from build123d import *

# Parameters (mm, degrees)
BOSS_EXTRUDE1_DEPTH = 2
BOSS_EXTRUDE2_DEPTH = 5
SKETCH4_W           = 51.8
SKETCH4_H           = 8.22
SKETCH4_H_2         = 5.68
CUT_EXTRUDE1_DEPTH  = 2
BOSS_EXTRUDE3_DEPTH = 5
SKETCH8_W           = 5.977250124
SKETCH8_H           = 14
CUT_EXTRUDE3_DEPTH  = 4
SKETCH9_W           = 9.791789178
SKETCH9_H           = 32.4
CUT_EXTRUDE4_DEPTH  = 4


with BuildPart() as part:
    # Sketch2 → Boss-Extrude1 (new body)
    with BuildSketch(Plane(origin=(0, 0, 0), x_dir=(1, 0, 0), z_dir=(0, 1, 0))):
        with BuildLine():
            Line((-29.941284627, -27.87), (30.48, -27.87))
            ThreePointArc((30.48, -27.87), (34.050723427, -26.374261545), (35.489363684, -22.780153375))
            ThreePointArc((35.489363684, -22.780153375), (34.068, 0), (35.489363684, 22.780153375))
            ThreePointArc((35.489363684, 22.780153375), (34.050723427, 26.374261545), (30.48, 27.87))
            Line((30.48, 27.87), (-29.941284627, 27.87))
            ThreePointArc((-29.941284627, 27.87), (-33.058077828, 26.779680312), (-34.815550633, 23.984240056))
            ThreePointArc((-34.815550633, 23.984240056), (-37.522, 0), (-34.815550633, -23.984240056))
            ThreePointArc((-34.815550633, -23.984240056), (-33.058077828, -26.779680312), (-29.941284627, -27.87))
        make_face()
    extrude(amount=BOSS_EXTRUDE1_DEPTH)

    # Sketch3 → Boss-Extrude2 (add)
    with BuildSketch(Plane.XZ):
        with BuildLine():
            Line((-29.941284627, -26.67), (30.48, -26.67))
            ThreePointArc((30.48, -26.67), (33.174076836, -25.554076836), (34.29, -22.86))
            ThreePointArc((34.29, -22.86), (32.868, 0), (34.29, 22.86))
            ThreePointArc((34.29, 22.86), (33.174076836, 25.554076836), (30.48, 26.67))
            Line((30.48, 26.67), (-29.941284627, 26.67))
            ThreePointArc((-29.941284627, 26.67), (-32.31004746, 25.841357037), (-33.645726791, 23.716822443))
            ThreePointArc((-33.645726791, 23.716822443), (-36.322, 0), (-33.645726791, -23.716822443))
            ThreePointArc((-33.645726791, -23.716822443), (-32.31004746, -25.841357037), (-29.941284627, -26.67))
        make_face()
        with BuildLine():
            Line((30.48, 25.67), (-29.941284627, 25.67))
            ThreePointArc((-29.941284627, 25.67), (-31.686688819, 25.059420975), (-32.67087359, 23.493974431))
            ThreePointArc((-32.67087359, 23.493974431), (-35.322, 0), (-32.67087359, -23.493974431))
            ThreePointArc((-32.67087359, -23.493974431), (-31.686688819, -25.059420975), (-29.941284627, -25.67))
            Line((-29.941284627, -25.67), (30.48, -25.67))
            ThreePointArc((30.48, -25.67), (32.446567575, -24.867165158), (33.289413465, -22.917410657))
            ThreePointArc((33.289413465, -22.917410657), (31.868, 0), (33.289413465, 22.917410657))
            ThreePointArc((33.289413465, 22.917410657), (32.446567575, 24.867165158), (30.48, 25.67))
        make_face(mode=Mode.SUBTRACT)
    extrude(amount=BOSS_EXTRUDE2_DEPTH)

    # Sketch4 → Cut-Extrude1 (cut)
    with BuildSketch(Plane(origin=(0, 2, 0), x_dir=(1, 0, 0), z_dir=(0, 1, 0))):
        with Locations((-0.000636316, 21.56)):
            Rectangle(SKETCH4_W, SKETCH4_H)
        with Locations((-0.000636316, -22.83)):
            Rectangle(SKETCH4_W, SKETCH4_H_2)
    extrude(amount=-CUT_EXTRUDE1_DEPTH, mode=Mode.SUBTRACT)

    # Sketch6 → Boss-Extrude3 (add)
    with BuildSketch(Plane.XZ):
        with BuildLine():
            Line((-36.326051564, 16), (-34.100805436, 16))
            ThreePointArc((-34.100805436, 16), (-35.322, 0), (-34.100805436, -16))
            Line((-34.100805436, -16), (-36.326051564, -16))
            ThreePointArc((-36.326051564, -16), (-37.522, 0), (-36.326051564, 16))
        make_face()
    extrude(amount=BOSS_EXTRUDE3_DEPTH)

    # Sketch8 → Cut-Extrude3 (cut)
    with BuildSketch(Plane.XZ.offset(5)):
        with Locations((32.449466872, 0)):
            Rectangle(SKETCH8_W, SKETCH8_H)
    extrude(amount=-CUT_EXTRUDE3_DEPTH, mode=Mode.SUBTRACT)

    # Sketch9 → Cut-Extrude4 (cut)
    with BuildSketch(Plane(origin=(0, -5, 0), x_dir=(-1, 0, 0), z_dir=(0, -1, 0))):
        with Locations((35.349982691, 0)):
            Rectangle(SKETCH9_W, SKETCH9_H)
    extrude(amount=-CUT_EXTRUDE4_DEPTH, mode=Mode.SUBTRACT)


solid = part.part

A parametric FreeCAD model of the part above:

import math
import FreeCAD as App
import Part
import Sketcher

doc = App.newDocument("Part")
body = doc.addObject("PartDesign::Body", "Body")

sketch1 = doc.addObject("Sketcher::SketchObject", "Sketch")
body.addObject(sketch1)
sketch1.AttachmentSupport = (doc.XZ_Plane, [""])
sketch1.MapMode = "FlatFace"
sketch1.addGeometry(Part.LineSegment(App.Vector(-30, 28, 0), App.Vector(30, 28, 0)), False)
sketch1.addGeometry(Part.ArcOfCircle(Part.Circle(App.Vector(30, 23, 0), App.Vector(0, 0, 1), 5), math.radians(-1), math.radians(90)), False)
sketch1.addGeometry(Part.ArcOfCircle(Part.Circle(App.Vector(217, 0, 0), App.Vector(0, 0, 1), 183), math.radians(172.86), math.radians(187.14)), False)
sketch1.addGeometry(Part.ArcOfCircle(Part.Circle(App.Vector(30, -23, 0), App.Vector(0, 0, 1), 5), math.radians(-90), math.radians(1)), False)
sketch1.addGeometry(Part.LineSegment(App.Vector(30, -28, 0), App.Vector(-30, -28, 0)), False)
sketch1.addGeometry(Part.ArcOfCircle(Part.Circle(App.Vector(-30, -23, 0), App.Vector(0, 0, 1), 5), math.radians(-167), math.radians(-90)), False)
sketch1.addGeometry(Part.ArcOfCircle(Part.Circle(App.Vector(70, 0, 0), App.Vector(0, 0, 1), 108), math.radians(167), math.radians(193)), False)
sketch1.addGeometry(Part.ArcOfCircle(Part.Circle(App.Vector(-30, 23, 0), App.Vector(0, 0, 1), 5), math.radians(90), math.radians(167)), False)
sketch1.addConstraint(Sketcher.Constraint("Tangent", 0, 2, 1, 2))
sketch1.addConstraint(Sketcher.Constraint("Coincident", 1, 1, 2, 1))
sketch1.addConstraint(Sketcher.Constraint("Coincident", 2, 2, 3, 2))
sketch1.addConstraint(Sketcher.Constraint("Tangent", 3, 1, 4, 1))
sketch1.addConstraint(Sketcher.Constraint("Tangent", 4, 2, 5, 2))
sketch1.addConstraint(Sketcher.Constraint("Tangent", 5, 1, 6, 2))
sketch1.addConstraint(Sketcher.Constraint("Tangent", 6, 1, 7, 2))
sketch1.addConstraint(Sketcher.Constraint("Tangent", 7, 1, 0, 1))
sketch1.addConstraint(Sketcher.Constraint("Horizontal", 0))
sketch1.addConstraint(Sketcher.Constraint("Horizontal", 4))
sketch1.addConstraint(Sketcher.Constraint("Equal", 1, 3))
sketch1.addConstraint(Sketcher.Constraint("Equal", 5, 7))
sketch1.addConstraint(Sketcher.Constraint("Symmetric", 1, 3, 3, 3, -1))
sketch1.addConstraint(Sketcher.Constraint("PointOnObject", 2, 3, -1))
sketch1.addConstraint(Sketcher.Constraint("PointOnObject", 6, 3, -1))
sketch1.addConstraint(Sketcher.Constraint("Radius", 5, 5.0))
sketch1.addConstraint(Sketcher.Constraint("Radius", 1, 5.01))
sketch1.addConstraint(Sketcher.Constraint("Radius", 6, 107.626))
sketch1.addConstraint(Sketcher.Constraint("Radius", 2, 183.259101))
sketch1.addConstraint(Sketcher.Constraint("DistanceX", -1, 1, 1, 3, 30.48))
sketch1.addConstraint(Sketcher.Constraint("DistanceY", -1, 1, 1, 3, 22.86))
sketch1.addConstraint(Sketcher.Constraint("DistanceX", -1, 1, 6, 3, 70.104))
sketch1.addConstraint(Sketcher.Constraint("DistanceX", -1, 1, 2, 3, 217.327101))
pad1 = doc.addObject("PartDesign::Pad", "Pad")
body.addObject(pad1)
pad1.Profile = sketch1
pad1.Length = 2
pad1.Reversed = True

sketch2 = doc.addObject("Sketcher::SketchObject", "Sketch001")
body.addObject(sketch2)
sketch2.AttachmentSupport = (doc.XZ_Plane, [""])
sketch2.MapMode = "FlatFace"
sketch2.addGeometry(Part.LineSegment(App.Vector(-29.9, -26.7, 0), App.Vector(30.5, -26.7, 0)), False)
sketch2.addGeometry(Part.ArcOfCircle(Part.Circle(App.Vector(30.5, -22.9, 0), App.Vector(0, 0, 1), 3.8), math.radians(-90), math.radians(0)), False)
sketch2.addGeometry(Part.ArcOfCircle(Part.Circle(App.Vector(217.3, 0, 0), App.Vector(0, 0, 1), 184.5), math.radians(172.88), math.radians(187.12)), False)
sketch2.addGeometry(Part.ArcOfCircle(Part.Circle(App.Vector(30.5, 22.9, 0), App.Vector(0, 0, 1), 3.8), math.radians(0), math.radians(90)), False)
sketch2.addGeometry(Part.LineSegment(App.Vector(30.5, 26.7, 0), App.Vector(-29.9, 26.7, 0)), False)
sketch2.addGeometry(Part.ArcOfCircle(Part.Circle(App.Vector(-29.9, 22.9, 0), App.Vector(0, 0, 1), 3.8), math.radians(90), math.radians(167)), False)
sketch2.addGeometry(Part.ArcOfCircle(Part.Circle(App.Vector(70.1, 0, 0), App.Vector(0, 0, 1), 106.4), math.radians(167), math.radians(193)), False)
sketch2.addGeometry(Part.ArcOfCircle(Part.Circle(App.Vector(-29.9, -22.9, 0), App.Vector(0, 0, 1), 3.8), math.radians(-167), math.radians(-90)), False)
sketch2.addGeometry(Part.LineSegment(App.Vector(-29.9, 25.7, 0), App.Vector(30.5, 25.7, 0)), False)
sketch2.addGeometry(Part.ArcOfCircle(Part.Circle(App.Vector(30.5, 22.9, 0), App.Vector(0, 0, 1), 2.8), math.radians(1), math.radians(90)), False)
sketch2.addGeometry(Part.ArcOfCircle(Part.Circle(App.Vector(217.3, 0, 0), App.Vector(0, 0, 1), 185.5), math.radians(172.9), math.radians(187.1)), False)
sketch2.addGeometry(Part.ArcOfCircle(Part.Circle(App.Vector(30.5, -22.9, 0), App.Vector(0, 0, 1), 2.8), math.radians(-90), math.radians(-1)), False)
sketch2.addGeometry(Part.LineSegment(App.Vector(30.5, -25.7, 0), App.Vector(-29.9, -25.7, 0)), False)
sketch2.addGeometry(Part.ArcOfCircle(Part.Circle(App.Vector(-29.9, -22.9, 0), App.Vector(0, 0, 1), 2.8), math.radians(-167), math.radians(-90)), False)
sketch2.addGeometry(Part.ArcOfCircle(Part.Circle(App.Vector(70.1, 0, 0), App.Vector(0, 0, 1), 105.4), math.radians(167), math.radians(193)), False)
sketch2.addGeometry(Part.ArcOfCircle(Part.Circle(App.Vector(-29.9, 22.9, 0), App.Vector(0, 0, 1), 2.8), math.radians(90), math.radians(167)), False)
sketch2.addConstraint(Sketcher.Constraint("Tangent", 0, 2, 1, 1))
sketch2.addConstraint(Sketcher.Constraint("Coincident", 1, 2, 2, 2))
sketch2.addConstraint(Sketcher.Constraint("Coincident", 2, 1, 3, 1))
sketch2.addConstraint(Sketcher.Constraint("Tangent", 3, 2, 4, 1))
sketch2.addConstraint(Sketcher.Constraint("Tangent", 4, 2, 5, 1))
sketch2.addConstraint(Sketcher.Constraint("Tangent", 5, 2, 6, 1))
sketch2.addConstraint(Sketcher.Constraint("Tangent", 6, 2, 7, 1))
sketch2.addConstraint(Sketcher.Constraint("Tangent", 7, 2, 0, 1))
sketch2.addConstraint(Sketcher.Constraint("Tangent", 8, 2, 9, 2))
sketch2.addConstraint(Sketcher.Constraint("Coincident", 9, 1, 10, 1))
sketch2.addConstraint(Sketcher.Constraint("Coincident", 10, 2, 11, 2))
sketch2.addConstraint(Sketcher.Constraint("Tangent", 11, 1, 12, 1))
sketch2.addConstraint(Sketcher.Constraint("Tangent", 12, 2, 13, 2))
sketch2.addConstraint(Sketcher.Constraint("Tangent", 13, 1, 14, 2))
sketch2.addConstraint(Sketcher.Constraint("Tangent", 14, 1, 15, 2))
sketch2.addConstraint(Sketcher.Constraint("Tangent", 15, 1, 8, 1))
sketch2.addConstraint(Sketcher.Constraint("Horizontal", 0))
sketch2.addConstraint(Sketcher.Constraint("Horizontal", 4))
sketch2.addConstraint(Sketcher.Constraint("Horizontal", 8))
sketch2.addConstraint(Sketcher.Constraint("Horizontal", 12))
sketch2.addConstraint(Sketcher.Constraint("Coincident", 9, 3, 3, 3))
sketch2.addConstraint(Sketcher.Constraint("Coincident", 10, 3, 2, 3))
sketch2.addConstraint(Sketcher.Constraint("Coincident", 11, 3, 1, 3))
sketch2.addConstraint(Sketcher.Constraint("Coincident", 13, 3, 7, 3))
sketch2.addConstraint(Sketcher.Constraint("Coincident", 14, 3, 6, 3))
sketch2.addConstraint(Sketcher.Constraint("Coincident", 15, 3, 5, 3))
sketch2.addConstraint(Sketcher.Constraint("Equal", 1, 3))
sketch2.addConstraint(Sketcher.Constraint("Equal", 5, 7))
sketch2.addConstraint(Sketcher.Constraint("Symmetric", 1, 3, 3, 3, -1))
sketch2.addConstraint(Sketcher.Constraint("PointOnObject", 2, 3, -1))
sketch2.addConstraint(Sketcher.Constraint("PointOnObject", 6, 3, -1))
sketch2.addConstraint(Sketcher.Constraint("Horizontal", 11, 3, 1, 2))
sketch2.addConstraint(Sketcher.Constraint("Radius", 5, 3.8))
sketch2.addConstraint(Sketcher.Constraint("Radius", 13, 2.8))
sketch2.addConstraint(Sketcher.Constraint("Radius", 1, 3.81))
sketch2.addConstraint(Sketcher.Constraint("Radius", 6, 106.426))
sketch2.addConstraint(Sketcher.Constraint("Radius", 2, 184.459101))
sketch2.addConstraint(Sketcher.Constraint("Radius", 10, 185.459101))
sketch2.addConstraint(Sketcher.Constraint("DistanceX", -1, 1, 1, 3, 30.48))
sketch2.addConstraint(Sketcher.Constraint("DistanceY", 1, 3, -1, 1, 22.86))
sketch2.addConstraint(Sketcher.Constraint("DistanceX", -1, 1, 6, 3, 70.104))
pad2 = doc.addObject("PartDesign::Pad", "Pad001")
body.addObject(pad2)
pad2.Profile = sketch2
pad2.Length = 5

sketch3 = doc.addObject("Sketcher::SketchObject", "Sketch002")
body.addObject(sketch3)
sketch3.AttachmentSupport = (doc.XZ_Plane, [""])
sketch3.MapMode = "FlatFace"
sketch3.AttachmentOffset = App.Placement(App.Vector(0, 0, -2), App.Rotation())
sketch3.addGeometry(Part.LineSegment(App.Vector(-26, -26, 0), App.Vector(-26, -17, 0)), False)
sketch3.addGeometry(Part.LineSegment(App.Vector(-26, -17, 0), App.Vector(26, -17, 0)), False)
sketch3.addGeometry(Part.LineSegment(App.Vector(26, -17, 0), App.Vector(26, -26, 0)), False)
sketch3.addGeometry(Part.LineSegment(App.Vector(26, -26, 0), App.Vector(-26, -26, 0)), False)
sketch3.addGeometry(Part.LineSegment(App.Vector(-26, 20, 0), App.Vector(-26, 26, 0)), False)
sketch3.addGeometry(Part.LineSegment(App.Vector(-26, 26, 0), App.Vector(26, 26, 0)), False)
sketch3.addGeometry(Part.LineSegment(App.Vector(26, 26, 0), App.Vector(26, 20, 0)), False)
sketch3.addGeometry(Part.LineSegment(App.Vector(26, 20, 0), App.Vector(-26, 20, 0)), False)
sketch3.addConstraint(Sketcher.Constraint("Coincident", 0, 2, 1, 1))
sketch3.addConstraint(Sketcher.Constraint("Coincident", 1, 2, 2, 1))
sketch3.addConstraint(Sketcher.Constraint("Coincident", 2, 2, 3, 1))
sketch3.addConstraint(Sketcher.Constraint("Coincident", 3, 2, 0, 1))
sketch3.addConstraint(Sketcher.Constraint("Coincident", 4, 2, 5, 1))
sketch3.addConstraint(Sketcher.Constraint("Coincident", 5, 2, 6, 1))
sketch3.addConstraint(Sketcher.Constraint("Coincident", 6, 2, 7, 1))
sketch3.addConstraint(Sketcher.Constraint("Coincident", 7, 2, 4, 1))
sketch3.addConstraint(Sketcher.Constraint("Vertical", 0))
sketch3.addConstraint(Sketcher.Constraint("Horizontal", 1))
sketch3.addConstraint(Sketcher.Constraint("Vertical", 2))
sketch3.addConstraint(Sketcher.Constraint("Horizontal", 3))
sketch3.addConstraint(Sketcher.Constraint("Vertical", 4))
sketch3.addConstraint(Sketcher.Constraint("Horizontal", 5))
sketch3.addConstraint(Sketcher.Constraint("Vertical", 6))
sketch3.addConstraint(Sketcher.Constraint("Horizontal", 7))
sketch3.addConstraint(Sketcher.Constraint("Symmetric", 3, 2, 4, 2, -1))
sketch3.addConstraint(Sketcher.Constraint("Vertical", 2, 2, 5, 2))
sketch3.addConstraint(Sketcher.Constraint("DistanceX", 1, 1, 1, 2, 51.8))
sketch3.addConstraint(Sketcher.Constraint("DistanceY", 0, 1, 0, 2, 8.22))
sketch3.addConstraint(Sketcher.Constraint("DistanceY", 4, 1, 4, 2, 5.68))
sketch3.addConstraint(Sketcher.Constraint("DistanceY", 0, 2, -1, 1, 17.45))
sketch3.addConstraint(Sketcher.Constraint("DistanceX", 0, 2, -1, 1, 25.900636))
pocket1 = doc.addObject("PartDesign::Pocket", "Pocket")
body.addObject(pocket1)
pocket1.Profile = sketch3
pocket1.Length = 2
pocket1.Reversed = True

sketch4 = doc.addObject("Sketcher::SketchObject", "Sketch003")
body.addObject(sketch4)
sketch4.AttachmentSupport = (doc.XZ_Plane, [""])
sketch4.MapMode = "FlatFace"
sketch4.addGeometry(Part.LineSegment(App.Vector(-34.1, 16, 0), App.Vector(-36.3, 16, 0)), False)
sketch4.addGeometry(Part.ArcOfCircle(Part.Circle(App.Vector(70.1, 0, 0), App.Vector(0, 0, 1), 107.6), math.radians(171.45), math.radians(188.55)), False)
sketch4.addGeometry(Part.LineSegment(App.Vector(-36.3, -16, 0), App.Vector(-34.1, -16, 0)), False)
sketch4.addGeometry(Part.ArcOfCircle(Part.Circle(App.Vector(70.1, 0, 0), App.Vector(0, 0, 1), 105.4), math.radians(171.27), math.radians(188.73)), False)
sketch4.addConstraint(Sketcher.Constraint("Coincident", 0, 2, 1, 1))
sketch4.addConstraint(Sketcher.Constraint("Coincident", 1, 2, 2, 1))
sketch4.addConstraint(Sketcher.Constraint("Coincident", 2, 2, 3, 2))
sketch4.addConstraint(Sketcher.Constraint("Coincident", 3, 1, 0, 1))
sketch4.addConstraint(Sketcher.Constraint("Horizontal", 0))
sketch4.addConstraint(Sketcher.Constraint("Horizontal", 2))
sketch4.addConstraint(Sketcher.Constraint("Coincident", 3, 3, 1, 3))
sketch4.addConstraint(Sketcher.Constraint("Symmetric", 0, 2, 1, 2, -1))
sketch4.addConstraint(Sketcher.Constraint("DistanceY", -1, 1, 0, 2, 16.0))
sketch4.addConstraint(Sketcher.Constraint("Radius", 1, 107.626))
sketch4.addConstraint(Sketcher.Constraint("Radius", 3, 105.426))
sketch4.addConstraint(Sketcher.Constraint("DistanceX", -1, 1, 1, 3, 70.104))
pad3 = doc.addObject("PartDesign::Pad", "Pad002")
body.addObject(pad3)
pad3.Profile = sketch4
pad3.Length = 5

sketch5 = doc.addObject("Sketcher::SketchObject", "Sketch004")
body.addObject(sketch5)
sketch5.AttachmentSupport = (doc.XZ_Plane, [""])
sketch5.MapMode = "FlatFace"
sketch5.AttachmentOffset = App.Placement(App.Vector(0, 0, 5), App.Rotation())
sketch5.addGeometry(Part.LineSegment(App.Vector(29, 7, 0), App.Vector(29, -7, 0)), False)
sketch5.addGeometry(Part.LineSegment(App.Vector(29, -7, 0), App.Vector(35, -7, 0)), False)
sketch5.addGeometry(Part.LineSegment(App.Vector(35, -7, 0), App.Vector(35, 7, 0)), False)
sketch5.addGeometry(Part.LineSegment(App.Vector(35, 7, 0), App.Vector(29, 7, 0)), False)
sketch5.addConstraint(Sketcher.Constraint("Coincident", 0, 2, 1, 1))
sketch5.addConstraint(Sketcher.Constraint("Coincident", 1, 2, 2, 1))
sketch5.addConstraint(Sketcher.Constraint("Coincident", 2, 2, 3, 1))
sketch5.addConstraint(Sketcher.Constraint("Coincident", 3, 2, 0, 1))
sketch5.addConstraint(Sketcher.Constraint("Vertical", 0))
sketch5.addConstraint(Sketcher.Constraint("Horizontal", 1))
sketch5.addConstraint(Sketcher.Constraint("Vertical", 2))
sketch5.addConstraint(Sketcher.Constraint("Horizontal", 3))
sketch5.addConstraint(Sketcher.Constraint("DistanceY", 0, 2, 0, 1, 14.0))
sketch5.addConstraint(Sketcher.Constraint("DistanceY", 0, 2, -1, 1, 7.0))
sketch5.addConstraint(Sketcher.Constraint("DistanceX", 1, 1, 1, 2, 5.97725))
sketch5.addConstraint(Sketcher.Constraint("DistanceX", -1, 1, 0, 2, 29.460842))
pocket2 = doc.addObject("PartDesign::Pocket", "Pocket001")
body.addObject(pocket2)
pocket2.Profile = sketch5
pocket2.Length = 4

sketch6 = doc.addObject("Sketcher::SketchObject", "Sketch005")
body.addObject(sketch6)
sketch6.AttachmentSupport = (doc.XZ_Plane, [""])
sketch6.MapMode = "FlatFace"
sketch6.AttachmentOffset = App.Placement(App.Vector(0, 0, 5), App.Rotation())
sketch6.addGeometry(Part.LineSegment(App.Vector(-30, -16, 0), App.Vector(-30, 16, 0)), False)
sketch6.addGeometry(Part.LineSegment(App.Vector(-30, 16, 0), App.Vector(-40, 16, 0)), False)
sketch6.addGeometry(Part.LineSegment(App.Vector(-40, 16, 0), App.Vector(-40, -16, 0)), False)
sketch6.addGeometry(Part.LineSegment(App.Vector(-40, -16, 0), App.Vector(-30, -16, 0)), False)
sketch6.addConstraint(Sketcher.Constraint("Coincident", 0, 2, 1, 1))
sketch6.addConstraint(Sketcher.Constraint("Coincident", 1, 2, 2, 1))
sketch6.addConstraint(Sketcher.Constraint("Coincident", 2, 2, 3, 1))
sketch6.addConstraint(Sketcher.Constraint("Coincident", 3, 2, 0, 1))
sketch6.addConstraint(Sketcher.Constraint("Vertical", 0))
sketch6.addConstraint(Sketcher.Constraint("Horizontal", 1))
sketch6.addConstraint(Sketcher.Constraint("Vertical", 2))
sketch6.addConstraint(Sketcher.Constraint("Horizontal", 3))
sketch6.addConstraint(Sketcher.Constraint("DistanceY", 0, 1, 0, 2, 32.4))
sketch6.addConstraint(Sketcher.Constraint("DistanceY", -1, 1, 0, 2, 16.2))
sketch6.addConstraint(Sketcher.Constraint("DistanceX", 1, 2, 1, 1, 9.791789))
sketch6.addConstraint(Sketcher.Constraint("DistanceX", 0, 2, -1, 1, 30.454088))
pocket3 = doc.addObject("PartDesign::Pocket", "Pocket002")
body.addObject(pocket3)
pocket3.Profile = sketch6
pocket3.Length = 4

doc.recompute()
